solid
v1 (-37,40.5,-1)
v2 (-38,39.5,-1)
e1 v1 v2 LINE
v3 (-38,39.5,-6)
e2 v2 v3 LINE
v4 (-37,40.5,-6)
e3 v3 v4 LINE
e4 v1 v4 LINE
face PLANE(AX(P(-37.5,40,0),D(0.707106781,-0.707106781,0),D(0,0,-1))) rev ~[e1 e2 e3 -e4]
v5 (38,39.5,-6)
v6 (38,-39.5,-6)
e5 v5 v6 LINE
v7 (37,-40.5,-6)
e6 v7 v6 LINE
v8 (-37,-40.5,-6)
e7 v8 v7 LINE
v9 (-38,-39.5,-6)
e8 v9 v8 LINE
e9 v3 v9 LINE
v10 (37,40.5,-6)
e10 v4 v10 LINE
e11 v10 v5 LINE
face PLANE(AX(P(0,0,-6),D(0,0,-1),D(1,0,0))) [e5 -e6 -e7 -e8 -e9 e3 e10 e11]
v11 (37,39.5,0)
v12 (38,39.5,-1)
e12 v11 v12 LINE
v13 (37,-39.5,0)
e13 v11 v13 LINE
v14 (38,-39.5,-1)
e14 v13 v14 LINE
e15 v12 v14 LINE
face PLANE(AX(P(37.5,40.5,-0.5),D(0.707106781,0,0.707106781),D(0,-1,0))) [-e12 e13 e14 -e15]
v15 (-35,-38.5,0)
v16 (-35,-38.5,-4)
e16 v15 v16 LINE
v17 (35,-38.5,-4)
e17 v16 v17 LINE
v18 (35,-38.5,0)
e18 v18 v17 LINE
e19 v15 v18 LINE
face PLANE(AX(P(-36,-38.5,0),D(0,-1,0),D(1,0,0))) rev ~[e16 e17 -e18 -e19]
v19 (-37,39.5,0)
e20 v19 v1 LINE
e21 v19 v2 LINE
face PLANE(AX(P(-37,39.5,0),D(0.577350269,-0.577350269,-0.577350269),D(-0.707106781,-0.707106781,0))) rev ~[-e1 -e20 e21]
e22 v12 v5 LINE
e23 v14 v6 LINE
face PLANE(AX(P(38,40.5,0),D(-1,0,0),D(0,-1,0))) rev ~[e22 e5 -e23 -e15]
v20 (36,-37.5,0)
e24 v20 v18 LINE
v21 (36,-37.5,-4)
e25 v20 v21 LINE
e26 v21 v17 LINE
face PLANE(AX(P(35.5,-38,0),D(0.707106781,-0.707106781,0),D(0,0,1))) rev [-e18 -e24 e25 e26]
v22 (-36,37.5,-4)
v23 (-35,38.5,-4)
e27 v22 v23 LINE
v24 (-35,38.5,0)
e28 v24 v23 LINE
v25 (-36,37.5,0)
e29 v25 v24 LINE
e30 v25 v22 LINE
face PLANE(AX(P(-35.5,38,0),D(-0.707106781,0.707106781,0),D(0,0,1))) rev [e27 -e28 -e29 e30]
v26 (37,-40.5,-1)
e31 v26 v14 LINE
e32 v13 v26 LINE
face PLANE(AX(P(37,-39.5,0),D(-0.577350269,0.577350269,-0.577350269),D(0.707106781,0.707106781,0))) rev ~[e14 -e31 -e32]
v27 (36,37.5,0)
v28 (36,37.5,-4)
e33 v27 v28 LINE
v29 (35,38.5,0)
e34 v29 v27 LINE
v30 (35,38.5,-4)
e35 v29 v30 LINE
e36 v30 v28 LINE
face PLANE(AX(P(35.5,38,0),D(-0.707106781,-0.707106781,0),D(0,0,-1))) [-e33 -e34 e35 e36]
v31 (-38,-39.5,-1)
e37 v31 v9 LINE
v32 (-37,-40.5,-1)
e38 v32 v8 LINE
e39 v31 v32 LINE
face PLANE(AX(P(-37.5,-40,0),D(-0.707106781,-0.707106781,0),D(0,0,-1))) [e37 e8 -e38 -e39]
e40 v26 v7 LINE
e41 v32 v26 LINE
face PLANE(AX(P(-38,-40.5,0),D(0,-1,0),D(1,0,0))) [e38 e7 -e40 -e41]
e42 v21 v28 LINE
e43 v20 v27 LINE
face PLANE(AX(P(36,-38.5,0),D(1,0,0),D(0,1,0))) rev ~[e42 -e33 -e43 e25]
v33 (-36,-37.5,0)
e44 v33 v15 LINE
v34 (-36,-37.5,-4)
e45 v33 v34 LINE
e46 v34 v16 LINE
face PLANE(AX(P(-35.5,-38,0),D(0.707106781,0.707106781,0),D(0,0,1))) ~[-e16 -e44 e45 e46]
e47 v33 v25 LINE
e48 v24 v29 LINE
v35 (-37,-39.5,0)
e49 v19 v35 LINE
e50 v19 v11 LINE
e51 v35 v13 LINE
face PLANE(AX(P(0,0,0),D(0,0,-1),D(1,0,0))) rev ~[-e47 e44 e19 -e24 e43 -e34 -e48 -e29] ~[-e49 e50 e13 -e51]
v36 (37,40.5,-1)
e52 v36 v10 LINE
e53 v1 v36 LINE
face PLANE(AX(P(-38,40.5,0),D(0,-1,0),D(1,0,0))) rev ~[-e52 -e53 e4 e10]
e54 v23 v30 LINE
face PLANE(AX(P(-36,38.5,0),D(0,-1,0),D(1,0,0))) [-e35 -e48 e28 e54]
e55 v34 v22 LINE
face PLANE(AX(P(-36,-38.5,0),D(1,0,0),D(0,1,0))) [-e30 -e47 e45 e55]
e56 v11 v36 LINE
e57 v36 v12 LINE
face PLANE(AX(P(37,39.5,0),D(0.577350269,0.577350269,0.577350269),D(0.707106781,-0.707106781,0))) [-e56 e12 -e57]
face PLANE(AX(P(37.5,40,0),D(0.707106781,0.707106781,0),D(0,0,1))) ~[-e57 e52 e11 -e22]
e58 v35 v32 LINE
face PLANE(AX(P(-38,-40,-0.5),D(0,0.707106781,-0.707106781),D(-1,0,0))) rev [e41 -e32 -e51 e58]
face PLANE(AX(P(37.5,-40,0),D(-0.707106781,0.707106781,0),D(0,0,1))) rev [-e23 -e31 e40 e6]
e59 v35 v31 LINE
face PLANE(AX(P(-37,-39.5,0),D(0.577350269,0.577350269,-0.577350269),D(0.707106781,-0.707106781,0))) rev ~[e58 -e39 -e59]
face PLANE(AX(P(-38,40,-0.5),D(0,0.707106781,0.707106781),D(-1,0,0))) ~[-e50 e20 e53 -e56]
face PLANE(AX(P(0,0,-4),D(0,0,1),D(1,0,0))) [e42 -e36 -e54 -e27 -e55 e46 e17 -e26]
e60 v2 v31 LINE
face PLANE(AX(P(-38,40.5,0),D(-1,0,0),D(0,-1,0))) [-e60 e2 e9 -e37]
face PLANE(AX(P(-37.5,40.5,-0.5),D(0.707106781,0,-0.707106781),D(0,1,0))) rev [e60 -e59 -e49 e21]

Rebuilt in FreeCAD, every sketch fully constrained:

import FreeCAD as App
import Part
import Sketcher

V = App.Vector
Q = App.Units.Quantity


def edges_at(feature, points):
    """Names of the edges that pass closest to the given points."""
    edges = feature.Shape.Edges
    near = lambda p: min(range(len(edges)), key=lambda i: edges[i].distToShape(Part.Vertex(*p))[0])
    return sorted({f"Edge{near(p) + 1}" for p in points})

doc = App.newDocument("Part")
body = doc.addObject("PartDesign::Body", "Body")

sketch1 = body.newObject("Sketcher::SketchObject", "Sketch")
sketch1.AttachmentSupport = (doc.getObject("XY_Plane"), [""])
sketch1.MapMode = "FlatFace"
sketch1.addGeometry([
    Part.LineSegment(V(-38, -40, 0), V(-38, 40, 0)),
    Part.LineSegment(V(-38, 40, 0), V(38, 40, 0)),
    Part.LineSegment(V(38, 40, 0), V(38, -40, 0)),
    Part.LineSegment(V(38, -40, 0), V(-38, -40, 0)),
], False)
sketch1.addConstraint([
    Sketcher.Constraint("Coincident", 0, 2, 1, 1),
    Sketcher.Constraint("Coincident", 1, 2, 2, 1),
    Sketcher.Constraint("Coincident", 2, 2, 3, 1),
    Sketcher.Constraint("Coincident", 3, 2, 0, 1),
    Sketcher.Constraint("Vertical", 0),
    Sketcher.Constraint("Horizontal", 1),
    Sketcher.Constraint("Vertical", 2),
    Sketcher.Constraint("Horizontal", 3),
    Sketcher.Constraint("Symmetric", 0, 2, 2, 2, -1, 1),
    Sketcher.Constraint("DistanceX", 1, 1, 1, 2, Q("76 mm")),
    Sketcher.Constraint("DistanceY", 0, 1, 0, 2, Q("81 mm")),
])
pad1 = body.newObject("PartDesign::Pad", "Pad")
pad1.Profile = sketch1
pad1.Length = 6
pad1.Reversed = True

sketch2 = body.newObject("Sketcher::SketchObject", "Sketch001")
sketch2.AttachmentSupport = (doc.getObject("XY_Plane"), [""])
sketch2.MapMode = "FlatFace"
sketch2.addGeometry([
    Part.LineSegment(V(-36, 38, 0), V(-36, -38, 0)),
    Part.LineSegment(V(-36, -38, 0), V(36, -38, 0)),
    Part.LineSegment(V(36, -38, 0), V(36, 38, 0)),
    Part.LineSegment(V(36, 38, 0), V(-36, 38, 0)),
], False)
sketch2.addConstraint([
    Sketcher.Constraint("Coincident", 0, 2, 1, 1),
    Sketcher.Constraint("Coincident", 1, 2, 2, 1),
    Sketcher.Constraint("Coincident", 2, 2, 3, 1),
    Sketcher.Constraint("Coincident", 3, 2, 0, 1),
    Sketcher.Constraint("Vertical", 0),
    Sketcher.Constraint("Horizontal", 1),
    Sketcher.Constraint("Vertical", 2),
    Sketcher.Constraint("Horizontal", 3),
    Sketcher.Constraint("Symmetric", 0, 2, 2, 2, -1, 1),
    Sketcher.Constraint("DistanceX", 1, 1, 1, 2, Q("72 mm")),
    Sketcher.Constraint("DistanceY", 0, 2, 0, 1, Q("77 mm")),
])
pocket1 = body.newObject("PartDesign::Pocket", "Pocket")
pocket1.Profile = sketch2
pocket1.Length = 4
doc.recompute()

chamfer = body.newObject("PartDesign::Chamfer", "Chamfer")
chamfer.Base = (pocket1, edges_at(pocket1, [
    (36, -38.5, -2),
    (-36, -38.5, -2),
    (-36, 38.5, -2),
    (36, 38.5, -2),
    (38, -40.5, -3),
    (-38, -40.5, -3),
    (38, 40.5, -3),
    (-38, 40.5, -3),
    (0, 40.5, 0),
    (-38, 0, 0),
    (0, -40.5, 0),
    (38, 0, 0),
]))
chamfer.Size = 1

doc.recompute()
